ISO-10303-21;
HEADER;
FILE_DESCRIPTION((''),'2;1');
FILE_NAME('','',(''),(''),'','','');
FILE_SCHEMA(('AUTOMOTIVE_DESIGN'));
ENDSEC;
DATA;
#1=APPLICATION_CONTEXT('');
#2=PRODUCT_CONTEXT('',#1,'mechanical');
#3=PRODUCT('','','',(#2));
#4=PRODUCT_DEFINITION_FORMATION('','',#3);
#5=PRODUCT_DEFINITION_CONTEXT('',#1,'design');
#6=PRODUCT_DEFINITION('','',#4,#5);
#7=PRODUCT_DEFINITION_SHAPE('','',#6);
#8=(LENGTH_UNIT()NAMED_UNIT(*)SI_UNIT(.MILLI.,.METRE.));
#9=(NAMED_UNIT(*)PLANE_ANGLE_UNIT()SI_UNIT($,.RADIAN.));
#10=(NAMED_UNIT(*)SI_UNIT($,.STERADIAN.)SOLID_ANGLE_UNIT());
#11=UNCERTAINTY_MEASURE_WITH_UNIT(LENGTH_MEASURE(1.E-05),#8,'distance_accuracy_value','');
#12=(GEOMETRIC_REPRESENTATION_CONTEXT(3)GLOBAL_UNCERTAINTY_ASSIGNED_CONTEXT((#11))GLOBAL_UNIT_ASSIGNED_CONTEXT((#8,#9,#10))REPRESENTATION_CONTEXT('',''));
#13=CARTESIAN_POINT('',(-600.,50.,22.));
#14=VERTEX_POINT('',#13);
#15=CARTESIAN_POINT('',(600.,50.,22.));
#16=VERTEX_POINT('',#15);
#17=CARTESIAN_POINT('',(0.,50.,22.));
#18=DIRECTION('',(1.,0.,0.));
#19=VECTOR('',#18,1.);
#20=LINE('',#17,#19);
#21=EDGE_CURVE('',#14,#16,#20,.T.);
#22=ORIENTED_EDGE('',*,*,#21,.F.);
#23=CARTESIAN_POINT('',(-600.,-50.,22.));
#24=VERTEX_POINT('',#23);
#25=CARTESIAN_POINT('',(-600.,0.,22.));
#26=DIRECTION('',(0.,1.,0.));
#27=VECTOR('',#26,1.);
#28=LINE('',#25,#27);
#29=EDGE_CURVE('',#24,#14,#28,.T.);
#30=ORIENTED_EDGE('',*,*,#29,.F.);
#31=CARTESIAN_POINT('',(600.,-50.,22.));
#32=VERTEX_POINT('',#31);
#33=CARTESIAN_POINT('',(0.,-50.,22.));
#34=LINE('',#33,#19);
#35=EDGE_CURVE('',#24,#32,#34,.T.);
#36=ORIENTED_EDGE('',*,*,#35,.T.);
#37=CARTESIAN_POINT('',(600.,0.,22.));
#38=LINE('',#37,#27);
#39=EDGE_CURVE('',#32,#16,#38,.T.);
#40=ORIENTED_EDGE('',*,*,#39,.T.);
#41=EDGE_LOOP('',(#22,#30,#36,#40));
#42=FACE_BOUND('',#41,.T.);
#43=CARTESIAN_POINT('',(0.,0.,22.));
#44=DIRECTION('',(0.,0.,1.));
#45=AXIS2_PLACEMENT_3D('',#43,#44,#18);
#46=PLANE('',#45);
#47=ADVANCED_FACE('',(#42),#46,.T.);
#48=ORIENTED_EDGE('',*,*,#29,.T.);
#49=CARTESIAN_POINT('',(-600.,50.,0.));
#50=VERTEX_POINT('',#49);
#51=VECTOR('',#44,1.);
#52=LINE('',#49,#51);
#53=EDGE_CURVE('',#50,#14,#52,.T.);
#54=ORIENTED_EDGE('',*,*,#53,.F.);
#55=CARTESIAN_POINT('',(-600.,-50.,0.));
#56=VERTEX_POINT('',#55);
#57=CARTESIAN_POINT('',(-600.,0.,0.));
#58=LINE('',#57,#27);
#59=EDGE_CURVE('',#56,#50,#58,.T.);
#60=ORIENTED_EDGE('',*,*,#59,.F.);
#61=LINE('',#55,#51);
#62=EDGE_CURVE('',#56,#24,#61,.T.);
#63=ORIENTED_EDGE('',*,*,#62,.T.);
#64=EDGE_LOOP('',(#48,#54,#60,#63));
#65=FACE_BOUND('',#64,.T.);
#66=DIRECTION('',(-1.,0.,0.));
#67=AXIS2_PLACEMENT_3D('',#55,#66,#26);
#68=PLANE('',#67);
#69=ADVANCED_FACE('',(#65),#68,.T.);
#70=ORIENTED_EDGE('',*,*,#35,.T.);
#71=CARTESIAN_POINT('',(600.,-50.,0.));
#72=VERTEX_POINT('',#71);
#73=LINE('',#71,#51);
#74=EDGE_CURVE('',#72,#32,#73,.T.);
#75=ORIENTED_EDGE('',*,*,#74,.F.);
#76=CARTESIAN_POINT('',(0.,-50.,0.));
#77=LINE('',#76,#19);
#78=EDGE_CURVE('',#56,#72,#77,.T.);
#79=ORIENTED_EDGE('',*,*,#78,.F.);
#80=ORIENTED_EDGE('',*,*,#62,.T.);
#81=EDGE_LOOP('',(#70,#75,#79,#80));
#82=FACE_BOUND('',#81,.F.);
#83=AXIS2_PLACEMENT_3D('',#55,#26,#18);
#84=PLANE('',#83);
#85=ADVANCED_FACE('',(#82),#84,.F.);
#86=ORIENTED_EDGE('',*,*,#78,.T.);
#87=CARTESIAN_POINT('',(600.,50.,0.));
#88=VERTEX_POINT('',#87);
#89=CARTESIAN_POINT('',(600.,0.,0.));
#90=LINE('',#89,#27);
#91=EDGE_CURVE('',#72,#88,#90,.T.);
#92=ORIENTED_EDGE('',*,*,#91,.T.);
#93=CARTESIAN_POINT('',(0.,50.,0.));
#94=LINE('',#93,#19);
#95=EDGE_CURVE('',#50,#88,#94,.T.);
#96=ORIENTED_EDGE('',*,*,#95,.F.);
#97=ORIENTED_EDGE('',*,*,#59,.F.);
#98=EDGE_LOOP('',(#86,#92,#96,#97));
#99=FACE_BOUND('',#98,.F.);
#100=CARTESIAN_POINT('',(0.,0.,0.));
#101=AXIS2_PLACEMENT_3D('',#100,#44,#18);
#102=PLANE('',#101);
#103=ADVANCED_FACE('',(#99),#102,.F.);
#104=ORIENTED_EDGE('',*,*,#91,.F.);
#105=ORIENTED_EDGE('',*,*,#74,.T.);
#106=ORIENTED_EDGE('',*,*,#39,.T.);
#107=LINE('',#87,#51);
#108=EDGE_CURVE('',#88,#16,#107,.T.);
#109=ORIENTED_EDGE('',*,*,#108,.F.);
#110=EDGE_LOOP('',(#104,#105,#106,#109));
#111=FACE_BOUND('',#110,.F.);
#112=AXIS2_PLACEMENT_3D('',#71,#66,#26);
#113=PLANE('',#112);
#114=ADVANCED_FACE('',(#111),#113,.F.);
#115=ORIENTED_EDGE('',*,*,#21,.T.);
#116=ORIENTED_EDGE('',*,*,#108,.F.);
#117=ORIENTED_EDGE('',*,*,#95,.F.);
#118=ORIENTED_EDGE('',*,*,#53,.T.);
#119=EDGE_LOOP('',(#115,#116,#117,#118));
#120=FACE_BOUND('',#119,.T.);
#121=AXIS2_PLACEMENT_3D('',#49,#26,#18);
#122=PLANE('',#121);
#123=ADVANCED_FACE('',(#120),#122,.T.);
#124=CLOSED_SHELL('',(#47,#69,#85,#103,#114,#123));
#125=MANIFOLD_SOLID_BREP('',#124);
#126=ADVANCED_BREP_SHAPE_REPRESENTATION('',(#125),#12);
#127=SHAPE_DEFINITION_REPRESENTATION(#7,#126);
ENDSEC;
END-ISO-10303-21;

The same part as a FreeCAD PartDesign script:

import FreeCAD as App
import Part
import Sketcher
from FreeCAD import Vector
Q = App.Units.Quantity


def add_polygon(sketch, points):
    """Adds a closed chain of lines whose ends are joined by coincident constraints."""
    first, n = sketch.GeometryCount, len(points)
    for a, b in zip(points, points[1:] + points[:1]):
        sketch.addGeometry(Part.LineSegment(App.Vector(*a, 0), App.Vector(*b, 0)), False)
    for i in range(n):
        sketch.addConstraint(Sketcher.Constraint("Coincident", first + i, 2, first + (i + 1) % n, 1))

doc = App.newDocument("Part")
body = doc.addObject("PartDesign::Body", "Body")

sketch1 = body.newObject("Sketcher::SketchObject", "Sketch")
sketch1.AttachmentSupport = (doc.getObject("XY_Plane"), [""])
sketch1.MapMode = "FlatFace"
add_polygon(sketch1, [(-600, 50), (-600, -50), (600, -50), (600, 50)])
sketch1.addConstraint([
    Sketcher.Constraint("Vertical", 0),
    Sketcher.Constraint("Horizontal", 1),
    Sketcher.Constraint("Vertical", 2),
    Sketcher.Constraint("Horizontal", 3),
    Sketcher.Constraint("Symmetric", 0, 2, 2, 2, -1, 1),
    Sketcher.Constraint("DistanceX", 1, 1, 1, 2, Q("1200 mm")),
    Sketcher.Constraint("DistanceY", 0, 2, 0, 1, Q("100 mm")),
])
pad1 = body.newObject("PartDesign::Pad", "Pad")
pad1.Profile = sketch1
pad1.Length = 22

doc.recompute()
